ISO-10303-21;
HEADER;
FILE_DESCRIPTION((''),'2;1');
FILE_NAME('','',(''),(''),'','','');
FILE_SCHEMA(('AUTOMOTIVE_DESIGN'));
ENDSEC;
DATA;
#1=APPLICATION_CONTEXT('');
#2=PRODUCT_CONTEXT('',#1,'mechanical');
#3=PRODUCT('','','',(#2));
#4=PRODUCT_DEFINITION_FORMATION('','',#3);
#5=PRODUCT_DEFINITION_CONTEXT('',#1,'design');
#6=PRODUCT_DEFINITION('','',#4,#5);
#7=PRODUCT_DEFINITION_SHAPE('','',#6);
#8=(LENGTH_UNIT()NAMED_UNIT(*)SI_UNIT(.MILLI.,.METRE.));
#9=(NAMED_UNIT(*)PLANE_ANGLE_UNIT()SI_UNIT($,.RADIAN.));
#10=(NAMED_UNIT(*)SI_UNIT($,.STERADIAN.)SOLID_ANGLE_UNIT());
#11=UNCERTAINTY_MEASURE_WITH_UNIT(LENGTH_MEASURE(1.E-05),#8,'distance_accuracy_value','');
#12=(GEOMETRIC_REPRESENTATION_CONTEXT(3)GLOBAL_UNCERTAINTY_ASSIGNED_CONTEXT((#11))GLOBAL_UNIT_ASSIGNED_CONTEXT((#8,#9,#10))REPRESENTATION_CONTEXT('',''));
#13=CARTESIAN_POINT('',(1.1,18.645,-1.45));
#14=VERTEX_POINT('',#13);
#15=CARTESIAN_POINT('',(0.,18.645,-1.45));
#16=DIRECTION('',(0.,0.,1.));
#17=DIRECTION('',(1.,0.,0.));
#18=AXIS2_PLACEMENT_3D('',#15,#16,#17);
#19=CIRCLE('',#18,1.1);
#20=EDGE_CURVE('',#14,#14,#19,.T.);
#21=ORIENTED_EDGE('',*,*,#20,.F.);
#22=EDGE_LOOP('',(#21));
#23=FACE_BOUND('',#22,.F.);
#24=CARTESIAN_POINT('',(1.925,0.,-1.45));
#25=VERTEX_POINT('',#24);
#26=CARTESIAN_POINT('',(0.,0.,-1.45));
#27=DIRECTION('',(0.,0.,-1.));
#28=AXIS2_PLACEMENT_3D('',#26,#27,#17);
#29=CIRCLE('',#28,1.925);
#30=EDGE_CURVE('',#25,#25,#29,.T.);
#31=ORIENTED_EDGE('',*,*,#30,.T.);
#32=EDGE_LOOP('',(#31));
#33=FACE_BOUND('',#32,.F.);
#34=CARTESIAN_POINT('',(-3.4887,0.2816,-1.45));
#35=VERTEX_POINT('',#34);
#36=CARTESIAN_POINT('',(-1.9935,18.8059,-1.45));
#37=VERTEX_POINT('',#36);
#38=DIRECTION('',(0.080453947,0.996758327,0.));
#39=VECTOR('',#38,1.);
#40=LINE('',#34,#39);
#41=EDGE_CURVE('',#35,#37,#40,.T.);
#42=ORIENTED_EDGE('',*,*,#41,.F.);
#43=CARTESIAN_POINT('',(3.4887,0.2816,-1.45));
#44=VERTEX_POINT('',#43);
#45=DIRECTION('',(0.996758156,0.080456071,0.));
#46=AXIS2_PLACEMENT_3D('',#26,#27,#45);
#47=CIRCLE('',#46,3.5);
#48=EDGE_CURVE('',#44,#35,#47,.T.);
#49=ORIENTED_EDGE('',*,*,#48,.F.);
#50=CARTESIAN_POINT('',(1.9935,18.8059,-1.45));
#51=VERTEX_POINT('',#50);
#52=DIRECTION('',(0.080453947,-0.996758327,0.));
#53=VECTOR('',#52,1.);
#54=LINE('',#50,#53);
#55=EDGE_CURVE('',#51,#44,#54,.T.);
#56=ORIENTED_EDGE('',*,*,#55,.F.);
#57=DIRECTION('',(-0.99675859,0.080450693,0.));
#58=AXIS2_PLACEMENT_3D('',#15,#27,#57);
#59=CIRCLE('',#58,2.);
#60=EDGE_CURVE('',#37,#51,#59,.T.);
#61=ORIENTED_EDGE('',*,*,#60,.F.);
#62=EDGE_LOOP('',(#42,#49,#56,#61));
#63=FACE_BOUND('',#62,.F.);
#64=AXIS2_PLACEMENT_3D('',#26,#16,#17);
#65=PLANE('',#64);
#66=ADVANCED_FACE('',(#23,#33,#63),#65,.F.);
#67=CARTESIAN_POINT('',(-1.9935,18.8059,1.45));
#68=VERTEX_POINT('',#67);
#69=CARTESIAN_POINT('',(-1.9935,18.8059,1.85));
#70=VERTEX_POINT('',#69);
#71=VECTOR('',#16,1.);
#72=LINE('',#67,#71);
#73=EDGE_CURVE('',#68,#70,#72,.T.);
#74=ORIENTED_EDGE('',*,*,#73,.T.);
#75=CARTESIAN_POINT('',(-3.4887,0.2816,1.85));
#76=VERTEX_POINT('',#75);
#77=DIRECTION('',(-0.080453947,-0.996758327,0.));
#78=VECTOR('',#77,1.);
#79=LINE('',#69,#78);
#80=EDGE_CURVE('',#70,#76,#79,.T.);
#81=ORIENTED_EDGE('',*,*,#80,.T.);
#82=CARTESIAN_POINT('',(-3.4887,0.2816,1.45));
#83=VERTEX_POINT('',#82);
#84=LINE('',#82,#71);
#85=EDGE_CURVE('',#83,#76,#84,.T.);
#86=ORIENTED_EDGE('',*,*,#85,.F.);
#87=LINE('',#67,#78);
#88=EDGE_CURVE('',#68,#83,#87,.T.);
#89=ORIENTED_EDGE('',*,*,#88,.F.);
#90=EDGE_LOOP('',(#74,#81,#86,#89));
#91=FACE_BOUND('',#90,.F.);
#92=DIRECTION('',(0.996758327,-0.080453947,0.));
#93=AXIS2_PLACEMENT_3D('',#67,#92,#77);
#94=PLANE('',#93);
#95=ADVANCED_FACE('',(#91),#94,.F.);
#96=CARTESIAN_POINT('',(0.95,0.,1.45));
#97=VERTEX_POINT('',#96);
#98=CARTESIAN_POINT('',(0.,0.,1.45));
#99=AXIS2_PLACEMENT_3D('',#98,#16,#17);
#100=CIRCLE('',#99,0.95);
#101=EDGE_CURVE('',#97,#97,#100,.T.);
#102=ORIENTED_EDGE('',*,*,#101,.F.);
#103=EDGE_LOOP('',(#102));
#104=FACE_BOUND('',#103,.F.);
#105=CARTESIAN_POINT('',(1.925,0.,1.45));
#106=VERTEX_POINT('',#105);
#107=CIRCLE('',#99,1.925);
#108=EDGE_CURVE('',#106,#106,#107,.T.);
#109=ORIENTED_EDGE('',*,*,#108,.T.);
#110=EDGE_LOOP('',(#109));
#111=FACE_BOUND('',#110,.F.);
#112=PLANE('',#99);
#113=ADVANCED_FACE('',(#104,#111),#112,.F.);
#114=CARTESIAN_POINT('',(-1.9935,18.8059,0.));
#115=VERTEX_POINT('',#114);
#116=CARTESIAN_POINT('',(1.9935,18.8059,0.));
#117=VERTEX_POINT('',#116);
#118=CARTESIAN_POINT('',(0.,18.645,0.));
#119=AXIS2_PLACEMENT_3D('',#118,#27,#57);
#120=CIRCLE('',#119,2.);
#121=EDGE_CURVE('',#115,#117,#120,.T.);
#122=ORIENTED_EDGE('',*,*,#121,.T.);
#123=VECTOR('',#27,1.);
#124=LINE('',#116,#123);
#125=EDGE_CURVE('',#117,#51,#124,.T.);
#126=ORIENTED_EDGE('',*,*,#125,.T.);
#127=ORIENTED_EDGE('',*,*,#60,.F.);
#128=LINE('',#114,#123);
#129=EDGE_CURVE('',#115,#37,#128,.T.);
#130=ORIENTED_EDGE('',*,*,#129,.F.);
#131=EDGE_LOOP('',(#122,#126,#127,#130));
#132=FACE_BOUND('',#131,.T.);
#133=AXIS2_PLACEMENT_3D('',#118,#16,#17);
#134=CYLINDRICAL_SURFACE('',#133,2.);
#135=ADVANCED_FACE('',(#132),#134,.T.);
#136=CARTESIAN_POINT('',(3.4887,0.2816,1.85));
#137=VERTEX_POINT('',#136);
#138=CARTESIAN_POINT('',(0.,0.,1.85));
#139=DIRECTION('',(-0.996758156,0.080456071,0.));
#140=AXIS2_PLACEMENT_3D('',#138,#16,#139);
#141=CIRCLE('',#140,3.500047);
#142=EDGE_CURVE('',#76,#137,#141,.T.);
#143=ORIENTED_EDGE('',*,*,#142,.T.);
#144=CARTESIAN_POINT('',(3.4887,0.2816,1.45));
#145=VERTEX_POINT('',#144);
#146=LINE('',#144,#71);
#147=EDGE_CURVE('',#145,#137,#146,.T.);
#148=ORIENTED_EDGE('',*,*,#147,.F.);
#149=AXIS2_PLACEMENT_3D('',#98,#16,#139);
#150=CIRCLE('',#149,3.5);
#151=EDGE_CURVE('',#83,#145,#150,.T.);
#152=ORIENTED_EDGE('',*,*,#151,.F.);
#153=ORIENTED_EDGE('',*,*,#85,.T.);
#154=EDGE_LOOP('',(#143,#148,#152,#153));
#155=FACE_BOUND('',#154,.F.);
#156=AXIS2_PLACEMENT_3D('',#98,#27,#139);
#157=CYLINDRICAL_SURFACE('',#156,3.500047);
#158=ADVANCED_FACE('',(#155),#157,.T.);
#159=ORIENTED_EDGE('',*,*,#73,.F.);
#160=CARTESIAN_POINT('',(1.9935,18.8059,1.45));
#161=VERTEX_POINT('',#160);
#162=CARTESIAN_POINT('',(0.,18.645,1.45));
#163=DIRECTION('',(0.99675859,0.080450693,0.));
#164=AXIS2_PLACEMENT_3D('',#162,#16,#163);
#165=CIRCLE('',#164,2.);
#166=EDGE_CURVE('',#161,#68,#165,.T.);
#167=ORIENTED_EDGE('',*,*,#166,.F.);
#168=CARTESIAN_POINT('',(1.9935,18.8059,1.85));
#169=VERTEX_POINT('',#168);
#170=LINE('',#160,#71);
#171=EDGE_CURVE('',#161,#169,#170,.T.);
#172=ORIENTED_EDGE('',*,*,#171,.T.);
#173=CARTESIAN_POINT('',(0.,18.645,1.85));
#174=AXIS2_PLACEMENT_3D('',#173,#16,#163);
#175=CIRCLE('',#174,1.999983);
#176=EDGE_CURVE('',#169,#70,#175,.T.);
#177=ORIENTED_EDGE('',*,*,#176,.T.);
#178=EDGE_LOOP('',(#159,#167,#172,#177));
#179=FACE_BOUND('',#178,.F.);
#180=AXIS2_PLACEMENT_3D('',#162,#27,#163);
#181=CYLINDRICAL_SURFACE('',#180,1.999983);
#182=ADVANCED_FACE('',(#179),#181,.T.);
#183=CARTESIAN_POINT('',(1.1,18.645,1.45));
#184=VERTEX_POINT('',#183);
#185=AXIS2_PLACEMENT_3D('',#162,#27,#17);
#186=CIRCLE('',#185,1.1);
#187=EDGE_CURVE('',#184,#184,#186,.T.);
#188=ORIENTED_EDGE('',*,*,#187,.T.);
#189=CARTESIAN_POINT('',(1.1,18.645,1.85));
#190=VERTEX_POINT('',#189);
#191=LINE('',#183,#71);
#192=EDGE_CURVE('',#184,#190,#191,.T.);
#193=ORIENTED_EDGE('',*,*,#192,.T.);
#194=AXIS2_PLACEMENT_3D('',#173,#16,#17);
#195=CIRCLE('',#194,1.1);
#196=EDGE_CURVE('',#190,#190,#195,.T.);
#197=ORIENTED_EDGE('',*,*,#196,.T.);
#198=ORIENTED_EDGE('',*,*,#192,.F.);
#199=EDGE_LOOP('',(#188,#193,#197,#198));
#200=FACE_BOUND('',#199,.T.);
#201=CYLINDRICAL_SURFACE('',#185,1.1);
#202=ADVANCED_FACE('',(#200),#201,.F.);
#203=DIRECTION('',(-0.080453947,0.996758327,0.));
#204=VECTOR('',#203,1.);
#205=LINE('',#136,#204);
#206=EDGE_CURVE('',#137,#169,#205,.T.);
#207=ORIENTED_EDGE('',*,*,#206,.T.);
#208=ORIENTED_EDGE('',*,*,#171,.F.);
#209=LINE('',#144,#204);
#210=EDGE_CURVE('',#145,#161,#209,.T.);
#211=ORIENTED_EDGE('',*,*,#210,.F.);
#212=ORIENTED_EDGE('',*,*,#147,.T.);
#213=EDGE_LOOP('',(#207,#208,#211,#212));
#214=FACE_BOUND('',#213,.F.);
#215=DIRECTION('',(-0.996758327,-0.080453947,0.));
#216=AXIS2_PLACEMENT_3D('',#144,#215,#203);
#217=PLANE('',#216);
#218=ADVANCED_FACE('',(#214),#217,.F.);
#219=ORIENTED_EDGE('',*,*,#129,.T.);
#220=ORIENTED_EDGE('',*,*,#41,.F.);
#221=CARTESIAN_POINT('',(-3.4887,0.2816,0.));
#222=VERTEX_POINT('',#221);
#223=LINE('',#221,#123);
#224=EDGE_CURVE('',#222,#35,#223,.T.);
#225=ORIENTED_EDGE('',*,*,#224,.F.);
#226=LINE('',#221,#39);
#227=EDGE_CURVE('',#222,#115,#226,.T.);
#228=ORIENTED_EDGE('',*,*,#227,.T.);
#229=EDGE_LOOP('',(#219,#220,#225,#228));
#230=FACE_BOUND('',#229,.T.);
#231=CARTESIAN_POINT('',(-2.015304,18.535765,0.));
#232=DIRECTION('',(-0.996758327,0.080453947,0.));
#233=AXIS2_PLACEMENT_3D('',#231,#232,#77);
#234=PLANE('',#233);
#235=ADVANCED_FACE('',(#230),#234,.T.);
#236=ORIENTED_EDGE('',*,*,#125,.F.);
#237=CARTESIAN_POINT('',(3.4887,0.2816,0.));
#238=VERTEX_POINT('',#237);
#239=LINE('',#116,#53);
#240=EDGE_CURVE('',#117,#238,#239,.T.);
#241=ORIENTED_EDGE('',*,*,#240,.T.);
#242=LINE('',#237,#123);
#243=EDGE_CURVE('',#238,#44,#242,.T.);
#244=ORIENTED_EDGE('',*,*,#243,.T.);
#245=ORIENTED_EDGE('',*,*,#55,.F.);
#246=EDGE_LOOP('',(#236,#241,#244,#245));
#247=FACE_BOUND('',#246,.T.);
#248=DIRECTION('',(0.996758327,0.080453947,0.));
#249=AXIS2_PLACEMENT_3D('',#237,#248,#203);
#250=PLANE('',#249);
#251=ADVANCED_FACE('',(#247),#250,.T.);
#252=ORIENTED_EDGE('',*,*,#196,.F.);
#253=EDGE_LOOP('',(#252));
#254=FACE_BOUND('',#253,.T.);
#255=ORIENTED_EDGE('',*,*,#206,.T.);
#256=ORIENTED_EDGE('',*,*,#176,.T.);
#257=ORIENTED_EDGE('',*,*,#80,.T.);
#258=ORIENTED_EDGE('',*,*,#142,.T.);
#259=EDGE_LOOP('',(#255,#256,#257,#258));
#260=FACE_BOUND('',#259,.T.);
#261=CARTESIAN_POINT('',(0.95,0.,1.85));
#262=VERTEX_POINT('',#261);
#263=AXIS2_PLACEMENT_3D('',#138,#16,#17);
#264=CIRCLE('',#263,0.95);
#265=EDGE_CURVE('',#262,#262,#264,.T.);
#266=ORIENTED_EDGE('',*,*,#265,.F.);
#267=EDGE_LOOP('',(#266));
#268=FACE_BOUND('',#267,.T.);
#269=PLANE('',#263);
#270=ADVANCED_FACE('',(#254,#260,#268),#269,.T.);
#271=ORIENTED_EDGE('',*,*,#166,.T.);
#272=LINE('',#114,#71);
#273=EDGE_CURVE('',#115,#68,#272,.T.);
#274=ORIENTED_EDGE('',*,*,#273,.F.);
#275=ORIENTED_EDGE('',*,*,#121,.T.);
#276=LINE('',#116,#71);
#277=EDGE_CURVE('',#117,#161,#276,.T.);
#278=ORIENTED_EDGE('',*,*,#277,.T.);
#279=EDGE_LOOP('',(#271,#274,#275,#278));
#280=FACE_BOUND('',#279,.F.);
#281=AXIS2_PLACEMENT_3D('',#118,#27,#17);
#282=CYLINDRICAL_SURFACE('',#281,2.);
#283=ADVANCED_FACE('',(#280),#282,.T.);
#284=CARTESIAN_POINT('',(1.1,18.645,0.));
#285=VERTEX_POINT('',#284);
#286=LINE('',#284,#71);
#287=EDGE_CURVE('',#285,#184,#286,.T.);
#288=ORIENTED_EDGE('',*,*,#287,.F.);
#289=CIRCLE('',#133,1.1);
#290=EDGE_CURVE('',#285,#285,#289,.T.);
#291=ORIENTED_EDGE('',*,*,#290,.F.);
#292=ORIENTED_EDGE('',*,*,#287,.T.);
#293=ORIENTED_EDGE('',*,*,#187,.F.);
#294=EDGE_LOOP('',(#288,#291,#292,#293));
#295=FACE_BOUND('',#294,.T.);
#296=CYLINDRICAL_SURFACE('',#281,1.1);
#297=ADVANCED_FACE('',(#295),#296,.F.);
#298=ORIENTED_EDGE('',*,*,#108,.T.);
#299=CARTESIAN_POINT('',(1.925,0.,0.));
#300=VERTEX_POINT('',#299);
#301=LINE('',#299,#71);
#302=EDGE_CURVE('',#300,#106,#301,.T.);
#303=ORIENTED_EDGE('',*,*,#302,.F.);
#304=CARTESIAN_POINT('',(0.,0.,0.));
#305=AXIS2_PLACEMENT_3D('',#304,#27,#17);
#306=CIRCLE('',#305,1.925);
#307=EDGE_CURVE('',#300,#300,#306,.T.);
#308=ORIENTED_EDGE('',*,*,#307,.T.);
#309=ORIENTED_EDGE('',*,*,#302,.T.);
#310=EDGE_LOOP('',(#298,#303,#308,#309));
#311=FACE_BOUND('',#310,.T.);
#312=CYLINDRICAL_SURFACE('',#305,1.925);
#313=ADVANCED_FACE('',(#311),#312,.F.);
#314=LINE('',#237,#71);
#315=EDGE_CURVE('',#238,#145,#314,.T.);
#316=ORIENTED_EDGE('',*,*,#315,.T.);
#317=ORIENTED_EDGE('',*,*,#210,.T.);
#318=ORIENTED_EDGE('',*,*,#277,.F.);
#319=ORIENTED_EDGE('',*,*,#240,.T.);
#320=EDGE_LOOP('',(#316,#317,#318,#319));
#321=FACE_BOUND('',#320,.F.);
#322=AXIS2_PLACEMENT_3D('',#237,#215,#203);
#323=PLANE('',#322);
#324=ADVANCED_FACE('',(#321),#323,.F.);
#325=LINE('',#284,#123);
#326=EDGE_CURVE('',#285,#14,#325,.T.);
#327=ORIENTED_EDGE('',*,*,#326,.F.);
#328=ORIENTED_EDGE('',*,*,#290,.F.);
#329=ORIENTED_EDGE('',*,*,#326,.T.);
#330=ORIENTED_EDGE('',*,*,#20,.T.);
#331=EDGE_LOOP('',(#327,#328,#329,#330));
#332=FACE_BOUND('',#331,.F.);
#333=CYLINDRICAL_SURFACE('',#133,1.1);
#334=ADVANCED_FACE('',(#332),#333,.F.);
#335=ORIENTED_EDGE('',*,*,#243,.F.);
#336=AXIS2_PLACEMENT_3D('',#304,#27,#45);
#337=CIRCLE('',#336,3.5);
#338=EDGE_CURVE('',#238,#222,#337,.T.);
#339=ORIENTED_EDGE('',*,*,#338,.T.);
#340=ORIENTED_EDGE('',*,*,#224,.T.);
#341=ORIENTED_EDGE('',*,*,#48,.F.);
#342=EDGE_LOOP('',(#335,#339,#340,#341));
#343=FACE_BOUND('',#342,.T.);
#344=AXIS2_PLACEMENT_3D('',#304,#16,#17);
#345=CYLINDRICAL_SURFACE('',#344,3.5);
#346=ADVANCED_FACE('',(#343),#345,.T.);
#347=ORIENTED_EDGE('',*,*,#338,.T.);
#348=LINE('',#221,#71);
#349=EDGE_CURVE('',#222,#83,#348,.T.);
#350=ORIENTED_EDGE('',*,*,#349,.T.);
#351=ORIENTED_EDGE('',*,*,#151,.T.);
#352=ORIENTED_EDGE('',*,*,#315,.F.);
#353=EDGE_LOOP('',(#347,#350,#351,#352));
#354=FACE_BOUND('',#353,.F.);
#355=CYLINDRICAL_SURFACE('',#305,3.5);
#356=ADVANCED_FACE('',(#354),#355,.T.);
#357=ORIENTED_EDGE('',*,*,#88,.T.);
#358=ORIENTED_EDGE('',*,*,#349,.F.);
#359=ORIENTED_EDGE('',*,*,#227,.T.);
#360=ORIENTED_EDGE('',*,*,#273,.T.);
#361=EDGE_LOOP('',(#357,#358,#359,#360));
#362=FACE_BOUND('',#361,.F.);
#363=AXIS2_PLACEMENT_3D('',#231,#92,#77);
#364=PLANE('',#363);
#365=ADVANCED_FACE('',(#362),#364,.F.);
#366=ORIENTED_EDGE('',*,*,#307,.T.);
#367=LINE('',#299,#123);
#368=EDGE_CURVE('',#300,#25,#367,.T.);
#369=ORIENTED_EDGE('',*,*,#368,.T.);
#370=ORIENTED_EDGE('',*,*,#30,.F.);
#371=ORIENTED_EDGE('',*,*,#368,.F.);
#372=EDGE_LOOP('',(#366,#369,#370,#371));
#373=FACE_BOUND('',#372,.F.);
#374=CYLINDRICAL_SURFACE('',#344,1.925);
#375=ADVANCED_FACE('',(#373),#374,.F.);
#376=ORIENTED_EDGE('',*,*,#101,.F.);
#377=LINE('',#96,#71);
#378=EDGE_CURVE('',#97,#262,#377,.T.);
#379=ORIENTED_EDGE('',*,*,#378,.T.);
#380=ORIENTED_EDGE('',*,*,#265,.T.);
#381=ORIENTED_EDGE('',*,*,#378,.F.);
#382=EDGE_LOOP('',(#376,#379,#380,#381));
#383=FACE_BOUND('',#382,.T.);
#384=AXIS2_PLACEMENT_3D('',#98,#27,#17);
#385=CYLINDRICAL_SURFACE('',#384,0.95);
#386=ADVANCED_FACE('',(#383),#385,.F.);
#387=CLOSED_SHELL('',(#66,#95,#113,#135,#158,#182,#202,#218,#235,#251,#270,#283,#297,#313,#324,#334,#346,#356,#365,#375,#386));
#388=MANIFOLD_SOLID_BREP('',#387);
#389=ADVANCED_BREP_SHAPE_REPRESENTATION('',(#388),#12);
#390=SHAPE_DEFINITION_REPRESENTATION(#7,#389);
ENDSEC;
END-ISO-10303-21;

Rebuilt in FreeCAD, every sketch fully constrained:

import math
import FreeCAD as App
import Part
import Sketcher

V = App.Vector

doc = App.newDocument("Part")
params = doc.addObject("Spreadsheet::Sheet", "Params")
for row, (alias, value) in enumerate([
    ("sketch1_radius", "2 mm"),
    ("sketch1_diameter", "2.2 mm"),
    ("sketch1_radius2", "3.5 mm"),
    ("sketch1_diameter2", "3.85 mm"),
    ("pad1_length", "2.9 mm"),
    ("sketch2_diameter", "1.9 mm"),
    ("sketch2_radius", "2 mm"),
    ("sketch2_diameter2", "2.2 mm"),
    ("sketch2_radius2", "3.5 mm"),
    ("pad2_length", "0.4 mm"),
], start=1):
    params.set(f"A{row}", alias)
    params.set(f"B{row}", "=" + value)
    params.setAlias(f"B{row}", alias)

body = doc.addObject("PartDesign::Body", "Body")

sketch1 = body.newObject("Sketcher::SketchObject", "Sketch")
sketch1.AttachmentSupport = (doc.getObject("XY_Plane"), [""])
sketch1.MapMode = "FlatFace"
sketch1.addGeometry([
    Part.LineSegment(V(3.5, 0.3, 0), V(2, 18.8, 0)),
    Part.ArcOfCircle(Part.Circle(V(0, 18.6, 0), V(0, 0, 1), 2), math.radians(5), math.radians(175)),
    Part.LineSegment(V(-2, 18.8, 0), V(-3.5, 0.3, 0)),
    Part.ArcOfCircle(Part.Circle(V(0, 0, 0), V(0, 0, 1), 3.5), math.radians(175), math.radians(365)),
    Part.Circle(V(0, 0, 0), V(0, 0, 1), 1.9),
    Part.Circle(V(0, 18.6, 0), V(0, 0, 1), 1.1),
], False)
sketch1.addConstraint([
    Sketcher.Constraint("Tangent", 0, 2, 1, 1),
    Sketcher.Constraint("Tangent", 1, 2, 2, 1),
    Sketcher.Constraint("Tangent", 2, 2, 3, 1),
    Sketcher.Constraint("Tangent", 3, 2, 0, 1),
    Sketcher.Constraint("Coincident", 3, 3, -1, 1),
    Sketcher.Constraint("Coincident", 4, 3, -1, 1),
    Sketcher.Constraint("Coincident", 5, 3, 1, 3),
    Sketcher.Constraint("PointOnObject", 1, 3, -2),
    Sketcher.Constraint("Radius", 1, 2.0),
    Sketcher.Constraint("Diameter", 5, 2.2),
    Sketcher.Constraint("Radius", 3, 3.5),
    Sketcher.Constraint("Diameter", 4, 3.85),
    Sketcher.Constraint("DistanceY", -1, 1, 1, 3, 18.645),
])
sketch1.setExpression("Constraints[8]", "Params.sketch1_radius")
sketch1.setExpression("Constraints[9]", "Params.sketch1_diameter")
sketch1.setExpression("Constraints[10]", "Params.sketch1_radius2")
sketch1.setExpression("Constraints[11]", "Params.sketch1_diameter2")
pad1 = body.newObject("PartDesign::Pad", "Pad")
pad1.Profile = sketch1
pad1.setExpression("Length", "Params.pad1_length")
pad1.Midplane = True

sketch2 = body.newObject("Sketcher::SketchObject", "Sketch001")
sketch2.AttachmentSupport = (doc.getObject("XY_Plane"), [""])
sketch2.MapMode = "FlatFace"
sketch2.AttachmentOffset = App.Placement(V(0, 0, 1.45), App.Rotation())
sketch2.addGeometry([
    Part.ArcOfCircle(Part.Circle(V(0, 0, 0), V(0, 0, 1), 3.5), math.radians(175), math.radians(365)),
    Part.LineSegment(V(3.5, 0.3, 0), V(2, 18.8, 0)),
    Part.ArcOfCircle(Part.Circle(V(0, 18.6, 0), V(0, 0, 1), 2), math.radians(5), math.radians(175)),
    Part.LineSegment(V(-2, 18.8, 0), V(-3.5, 0.3, 0)),
    Part.Circle(V(0, 18.6, 0), V(0, 0, 1), 1.1),
    Part.Circle(V(0, 0, 0), V(0, 0, 1), 0.9),
], False)
sketch2.addConstraint([
    Sketcher.Constraint("Tangent", 0, 2, 1, 1),
    Sketcher.Constraint("Tangent", 1, 2, 2, 1),
    Sketcher.Constraint("Tangent", 2, 2, 3, 1),
    Sketcher.Constraint("Tangent", 3, 2, 0, 1),
    Sketcher.Constraint("Coincident", 0, 3, -1, 1),
    Sketcher.Constraint("Coincident", 5, 3, -1, 1),
    Sketcher.Constraint("Coincident", 4, 3, 2, 3),
    Sketcher.Constraint("PointOnObject", 2, 3, -2),
    Sketcher.Constraint("Diameter", 5, 1.9),
    Sketcher.Constraint("Radius", 2, 2.0),
    Sketcher.Constraint("Diameter", 4, 2.2),
    Sketcher.Constraint("Radius", 0, 3.5),
    Sketcher.Constraint("DistanceY", -1, 1, 2, 3, 18.645),
])
sketch2.setExpression("Constraints[8]", "Params.sketch2_diameter")
sketch2.setExpression("Constraints[9]", "Params.sketch2_radius")
sketch2.setExpression("Constraints[10]", "Params.sketch2_diameter2")
sketch2.setExpression("Constraints[11]", "Params.sketch2_radius2")
pad2 = body.newObject("PartDesign::Pad", "Pad001")
pad2.Profile = sketch2
pad2.setExpression("Length", "Params.pad2_length")

doc.recompute()
